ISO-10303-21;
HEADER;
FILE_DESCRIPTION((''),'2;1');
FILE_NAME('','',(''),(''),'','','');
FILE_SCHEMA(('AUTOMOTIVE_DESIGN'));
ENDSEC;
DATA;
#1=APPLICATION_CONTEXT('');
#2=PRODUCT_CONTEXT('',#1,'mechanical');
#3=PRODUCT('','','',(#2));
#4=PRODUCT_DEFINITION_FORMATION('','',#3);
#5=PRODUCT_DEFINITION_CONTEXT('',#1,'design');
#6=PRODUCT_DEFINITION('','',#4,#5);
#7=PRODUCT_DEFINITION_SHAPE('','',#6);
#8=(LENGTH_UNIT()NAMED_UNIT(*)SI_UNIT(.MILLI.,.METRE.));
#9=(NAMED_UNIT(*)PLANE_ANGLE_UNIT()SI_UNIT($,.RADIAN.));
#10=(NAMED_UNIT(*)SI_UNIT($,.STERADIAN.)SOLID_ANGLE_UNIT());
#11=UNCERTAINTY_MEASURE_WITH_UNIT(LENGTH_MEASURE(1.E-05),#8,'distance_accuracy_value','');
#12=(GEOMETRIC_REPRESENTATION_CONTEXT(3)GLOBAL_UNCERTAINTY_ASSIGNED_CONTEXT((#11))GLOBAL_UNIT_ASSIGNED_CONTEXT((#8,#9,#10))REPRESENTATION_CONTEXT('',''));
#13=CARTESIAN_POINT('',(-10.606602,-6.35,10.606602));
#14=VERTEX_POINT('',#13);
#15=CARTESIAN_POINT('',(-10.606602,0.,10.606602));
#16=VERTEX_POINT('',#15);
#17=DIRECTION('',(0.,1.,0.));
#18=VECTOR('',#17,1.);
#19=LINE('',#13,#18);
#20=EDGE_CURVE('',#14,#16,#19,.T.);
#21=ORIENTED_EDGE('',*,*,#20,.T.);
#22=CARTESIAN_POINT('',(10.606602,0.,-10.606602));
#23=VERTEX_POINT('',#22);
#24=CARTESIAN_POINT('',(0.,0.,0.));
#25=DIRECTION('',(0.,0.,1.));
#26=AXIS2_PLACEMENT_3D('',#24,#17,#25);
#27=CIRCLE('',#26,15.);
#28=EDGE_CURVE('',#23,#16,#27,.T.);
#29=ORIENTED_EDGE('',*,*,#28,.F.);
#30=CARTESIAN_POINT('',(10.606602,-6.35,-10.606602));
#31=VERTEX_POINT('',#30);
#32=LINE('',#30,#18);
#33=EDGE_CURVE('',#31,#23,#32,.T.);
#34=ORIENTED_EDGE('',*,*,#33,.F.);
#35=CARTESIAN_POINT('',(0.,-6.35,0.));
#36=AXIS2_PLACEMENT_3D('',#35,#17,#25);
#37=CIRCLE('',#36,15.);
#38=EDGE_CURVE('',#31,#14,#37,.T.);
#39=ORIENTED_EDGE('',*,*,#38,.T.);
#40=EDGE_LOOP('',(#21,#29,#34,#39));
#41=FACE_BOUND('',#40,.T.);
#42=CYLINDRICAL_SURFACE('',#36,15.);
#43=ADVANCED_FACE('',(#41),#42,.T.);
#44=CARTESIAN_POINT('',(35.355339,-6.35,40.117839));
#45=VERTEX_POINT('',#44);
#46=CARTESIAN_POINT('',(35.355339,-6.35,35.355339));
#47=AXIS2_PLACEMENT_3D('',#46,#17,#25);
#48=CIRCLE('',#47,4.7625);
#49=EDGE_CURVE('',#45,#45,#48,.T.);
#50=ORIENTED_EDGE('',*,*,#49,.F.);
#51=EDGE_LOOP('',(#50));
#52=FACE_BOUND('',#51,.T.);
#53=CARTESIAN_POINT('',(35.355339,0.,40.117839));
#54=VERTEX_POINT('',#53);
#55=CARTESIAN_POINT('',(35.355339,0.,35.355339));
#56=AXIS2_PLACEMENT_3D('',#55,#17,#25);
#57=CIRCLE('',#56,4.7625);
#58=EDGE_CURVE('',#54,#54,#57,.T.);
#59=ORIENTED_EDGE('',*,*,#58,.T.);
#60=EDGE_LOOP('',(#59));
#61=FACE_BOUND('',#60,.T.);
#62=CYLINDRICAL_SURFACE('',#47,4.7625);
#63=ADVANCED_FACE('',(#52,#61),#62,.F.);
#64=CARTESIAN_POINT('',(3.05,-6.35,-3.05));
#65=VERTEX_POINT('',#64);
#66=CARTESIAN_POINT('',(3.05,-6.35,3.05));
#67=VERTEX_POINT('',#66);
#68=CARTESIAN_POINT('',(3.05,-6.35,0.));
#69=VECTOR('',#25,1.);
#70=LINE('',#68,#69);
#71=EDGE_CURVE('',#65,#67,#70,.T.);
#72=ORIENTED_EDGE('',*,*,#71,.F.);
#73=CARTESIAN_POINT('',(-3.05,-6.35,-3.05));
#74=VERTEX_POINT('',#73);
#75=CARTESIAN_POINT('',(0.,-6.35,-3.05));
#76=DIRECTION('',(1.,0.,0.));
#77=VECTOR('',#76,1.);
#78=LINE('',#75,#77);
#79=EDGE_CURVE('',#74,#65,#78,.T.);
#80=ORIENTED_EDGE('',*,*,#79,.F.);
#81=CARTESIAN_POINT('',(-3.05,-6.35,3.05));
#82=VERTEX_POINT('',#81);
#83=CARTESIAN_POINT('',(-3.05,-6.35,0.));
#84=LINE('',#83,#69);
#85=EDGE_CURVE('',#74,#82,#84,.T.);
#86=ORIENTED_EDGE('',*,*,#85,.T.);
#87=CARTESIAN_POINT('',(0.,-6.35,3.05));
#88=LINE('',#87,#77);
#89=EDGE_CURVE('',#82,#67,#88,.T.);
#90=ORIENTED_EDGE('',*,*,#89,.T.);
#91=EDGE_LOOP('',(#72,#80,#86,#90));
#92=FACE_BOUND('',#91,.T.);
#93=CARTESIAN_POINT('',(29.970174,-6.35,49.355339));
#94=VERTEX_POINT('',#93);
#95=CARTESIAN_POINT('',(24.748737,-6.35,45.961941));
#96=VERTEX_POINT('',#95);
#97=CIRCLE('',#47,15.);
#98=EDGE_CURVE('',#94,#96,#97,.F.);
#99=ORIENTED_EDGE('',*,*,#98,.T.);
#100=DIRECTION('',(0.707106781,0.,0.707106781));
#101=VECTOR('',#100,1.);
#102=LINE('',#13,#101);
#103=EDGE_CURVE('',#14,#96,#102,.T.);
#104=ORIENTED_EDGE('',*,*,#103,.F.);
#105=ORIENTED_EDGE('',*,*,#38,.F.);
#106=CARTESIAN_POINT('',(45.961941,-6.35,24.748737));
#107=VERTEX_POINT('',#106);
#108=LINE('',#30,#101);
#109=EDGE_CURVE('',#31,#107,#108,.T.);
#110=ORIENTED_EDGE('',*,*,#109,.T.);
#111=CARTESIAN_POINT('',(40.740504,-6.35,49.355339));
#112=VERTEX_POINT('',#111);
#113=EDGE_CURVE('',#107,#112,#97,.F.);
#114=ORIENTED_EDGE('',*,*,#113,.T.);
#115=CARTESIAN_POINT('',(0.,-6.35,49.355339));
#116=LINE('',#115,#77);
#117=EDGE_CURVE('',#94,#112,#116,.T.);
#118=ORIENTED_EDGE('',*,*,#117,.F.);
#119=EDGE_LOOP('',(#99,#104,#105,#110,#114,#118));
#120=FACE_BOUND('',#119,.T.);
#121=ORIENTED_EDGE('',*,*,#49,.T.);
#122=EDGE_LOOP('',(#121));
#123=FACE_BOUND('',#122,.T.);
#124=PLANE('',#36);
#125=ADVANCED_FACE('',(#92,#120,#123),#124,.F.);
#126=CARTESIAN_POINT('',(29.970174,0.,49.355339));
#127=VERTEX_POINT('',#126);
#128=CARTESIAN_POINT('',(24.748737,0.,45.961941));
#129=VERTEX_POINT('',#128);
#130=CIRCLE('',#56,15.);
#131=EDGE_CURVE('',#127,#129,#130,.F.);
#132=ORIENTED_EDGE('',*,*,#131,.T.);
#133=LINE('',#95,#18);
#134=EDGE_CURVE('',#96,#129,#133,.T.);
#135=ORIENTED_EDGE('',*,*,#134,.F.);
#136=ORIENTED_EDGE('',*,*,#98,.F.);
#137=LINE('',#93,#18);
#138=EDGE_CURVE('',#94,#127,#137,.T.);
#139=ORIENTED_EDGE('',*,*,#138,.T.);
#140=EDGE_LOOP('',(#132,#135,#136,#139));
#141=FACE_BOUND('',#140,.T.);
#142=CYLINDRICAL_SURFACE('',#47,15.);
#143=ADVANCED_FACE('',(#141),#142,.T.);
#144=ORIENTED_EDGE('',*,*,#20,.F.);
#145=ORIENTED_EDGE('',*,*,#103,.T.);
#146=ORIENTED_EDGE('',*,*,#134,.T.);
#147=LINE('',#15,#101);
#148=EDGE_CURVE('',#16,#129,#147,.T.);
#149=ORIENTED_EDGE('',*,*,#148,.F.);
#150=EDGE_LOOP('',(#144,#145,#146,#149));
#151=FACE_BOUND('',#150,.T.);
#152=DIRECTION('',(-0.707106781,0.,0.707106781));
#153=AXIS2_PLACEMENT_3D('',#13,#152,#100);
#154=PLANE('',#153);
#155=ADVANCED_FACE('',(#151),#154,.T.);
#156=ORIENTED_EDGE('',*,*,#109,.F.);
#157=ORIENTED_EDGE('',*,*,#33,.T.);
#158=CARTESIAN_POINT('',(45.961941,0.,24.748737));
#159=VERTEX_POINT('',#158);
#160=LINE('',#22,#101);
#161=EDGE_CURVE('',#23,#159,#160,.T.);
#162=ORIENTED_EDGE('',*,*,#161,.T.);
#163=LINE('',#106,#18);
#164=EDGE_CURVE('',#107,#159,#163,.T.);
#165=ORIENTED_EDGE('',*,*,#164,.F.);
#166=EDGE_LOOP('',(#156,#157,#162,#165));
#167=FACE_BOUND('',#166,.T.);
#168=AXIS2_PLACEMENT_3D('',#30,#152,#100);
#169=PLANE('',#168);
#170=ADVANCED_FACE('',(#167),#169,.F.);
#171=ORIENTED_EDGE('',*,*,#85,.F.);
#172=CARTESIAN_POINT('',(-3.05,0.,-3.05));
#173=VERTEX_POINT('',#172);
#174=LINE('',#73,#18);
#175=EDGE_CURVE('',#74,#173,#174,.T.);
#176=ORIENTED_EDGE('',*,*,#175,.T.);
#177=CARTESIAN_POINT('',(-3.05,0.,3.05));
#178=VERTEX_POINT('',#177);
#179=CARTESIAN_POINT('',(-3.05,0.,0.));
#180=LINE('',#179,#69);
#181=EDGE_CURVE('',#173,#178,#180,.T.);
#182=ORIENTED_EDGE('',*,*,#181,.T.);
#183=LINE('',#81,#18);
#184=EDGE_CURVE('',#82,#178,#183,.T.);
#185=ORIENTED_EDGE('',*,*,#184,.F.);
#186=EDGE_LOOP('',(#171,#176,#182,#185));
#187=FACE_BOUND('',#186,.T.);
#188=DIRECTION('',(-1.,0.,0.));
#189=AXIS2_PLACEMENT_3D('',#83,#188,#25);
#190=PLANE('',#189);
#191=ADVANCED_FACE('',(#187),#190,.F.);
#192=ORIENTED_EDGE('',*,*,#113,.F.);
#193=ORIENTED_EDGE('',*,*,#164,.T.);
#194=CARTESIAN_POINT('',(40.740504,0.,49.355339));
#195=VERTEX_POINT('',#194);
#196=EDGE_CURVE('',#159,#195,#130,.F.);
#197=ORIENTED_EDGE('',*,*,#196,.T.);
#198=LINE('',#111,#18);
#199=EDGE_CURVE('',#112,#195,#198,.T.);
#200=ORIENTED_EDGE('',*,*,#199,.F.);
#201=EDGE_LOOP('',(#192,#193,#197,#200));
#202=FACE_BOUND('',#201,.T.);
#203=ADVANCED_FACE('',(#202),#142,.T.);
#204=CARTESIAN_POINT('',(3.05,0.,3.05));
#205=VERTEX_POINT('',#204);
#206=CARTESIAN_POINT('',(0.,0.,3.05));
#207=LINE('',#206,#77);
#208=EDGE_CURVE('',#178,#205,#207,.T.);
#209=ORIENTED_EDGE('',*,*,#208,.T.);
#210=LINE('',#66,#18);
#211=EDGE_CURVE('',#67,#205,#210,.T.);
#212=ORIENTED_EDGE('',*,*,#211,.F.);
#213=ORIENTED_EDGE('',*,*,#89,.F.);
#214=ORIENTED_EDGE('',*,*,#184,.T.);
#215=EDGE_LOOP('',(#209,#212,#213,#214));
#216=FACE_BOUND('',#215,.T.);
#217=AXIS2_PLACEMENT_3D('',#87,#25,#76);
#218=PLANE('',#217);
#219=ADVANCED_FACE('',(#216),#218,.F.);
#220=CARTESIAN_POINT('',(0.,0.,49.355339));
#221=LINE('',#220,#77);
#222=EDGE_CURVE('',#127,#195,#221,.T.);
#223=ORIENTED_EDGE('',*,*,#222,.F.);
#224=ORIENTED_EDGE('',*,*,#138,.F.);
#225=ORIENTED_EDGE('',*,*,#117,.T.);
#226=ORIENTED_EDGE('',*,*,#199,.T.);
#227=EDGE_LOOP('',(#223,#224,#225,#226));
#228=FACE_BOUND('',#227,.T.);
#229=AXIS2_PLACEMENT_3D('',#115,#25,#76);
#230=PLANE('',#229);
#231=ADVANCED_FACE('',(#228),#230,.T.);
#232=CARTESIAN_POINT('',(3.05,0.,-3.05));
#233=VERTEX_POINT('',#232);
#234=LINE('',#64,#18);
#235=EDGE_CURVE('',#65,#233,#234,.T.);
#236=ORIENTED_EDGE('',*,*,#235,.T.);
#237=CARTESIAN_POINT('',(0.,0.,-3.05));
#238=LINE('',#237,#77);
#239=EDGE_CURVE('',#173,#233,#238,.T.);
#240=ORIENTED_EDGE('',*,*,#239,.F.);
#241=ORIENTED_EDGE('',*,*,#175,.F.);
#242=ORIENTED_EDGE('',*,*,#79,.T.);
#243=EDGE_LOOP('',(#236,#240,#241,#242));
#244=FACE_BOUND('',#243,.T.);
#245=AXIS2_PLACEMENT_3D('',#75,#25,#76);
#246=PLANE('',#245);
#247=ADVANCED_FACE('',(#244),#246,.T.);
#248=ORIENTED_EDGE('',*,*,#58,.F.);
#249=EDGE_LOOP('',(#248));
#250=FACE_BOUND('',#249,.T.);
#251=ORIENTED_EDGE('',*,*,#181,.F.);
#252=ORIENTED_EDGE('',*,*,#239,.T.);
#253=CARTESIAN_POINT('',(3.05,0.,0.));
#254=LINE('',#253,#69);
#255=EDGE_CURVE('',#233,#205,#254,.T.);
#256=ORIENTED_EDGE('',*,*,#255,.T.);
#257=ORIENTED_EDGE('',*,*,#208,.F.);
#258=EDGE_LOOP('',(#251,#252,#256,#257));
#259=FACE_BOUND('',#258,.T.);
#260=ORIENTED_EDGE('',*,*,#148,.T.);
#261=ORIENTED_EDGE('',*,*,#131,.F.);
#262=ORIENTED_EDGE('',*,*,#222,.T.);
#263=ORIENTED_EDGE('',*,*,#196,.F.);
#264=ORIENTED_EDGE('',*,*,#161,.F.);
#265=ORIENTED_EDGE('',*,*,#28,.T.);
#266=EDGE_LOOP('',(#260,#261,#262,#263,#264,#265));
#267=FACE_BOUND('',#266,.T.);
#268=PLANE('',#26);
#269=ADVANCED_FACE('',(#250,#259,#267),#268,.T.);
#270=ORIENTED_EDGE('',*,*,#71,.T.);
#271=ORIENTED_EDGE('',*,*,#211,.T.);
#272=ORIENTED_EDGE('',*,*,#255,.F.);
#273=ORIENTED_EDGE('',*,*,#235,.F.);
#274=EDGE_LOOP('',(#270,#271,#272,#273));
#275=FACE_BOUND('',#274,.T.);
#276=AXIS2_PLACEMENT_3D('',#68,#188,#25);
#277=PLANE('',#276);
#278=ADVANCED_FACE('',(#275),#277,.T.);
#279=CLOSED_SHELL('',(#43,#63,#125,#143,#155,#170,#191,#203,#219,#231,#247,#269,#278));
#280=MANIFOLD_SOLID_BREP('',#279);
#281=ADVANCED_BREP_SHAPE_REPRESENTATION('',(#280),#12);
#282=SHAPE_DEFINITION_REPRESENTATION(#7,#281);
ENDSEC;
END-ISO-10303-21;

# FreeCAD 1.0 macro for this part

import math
import FreeCAD as App
import Part
import Sketcher

V = App.Vector
Q = App.Units.Quantity

doc = App.newDocument("Part")
body = doc.addObject("PartDesign::Body", "Body")

# Sketch on XZ plane
sketch1 = body.newObject("Sketcher::SketchObject", "Sketch")
sketch1.AttachmentSupport = (doc.getObject("XZ_Plane"), [""])
sketch1.MapMode = "FlatFace"
sketch1.addGeometry([
    Part.LineSegment(V(46, 24.7, 0), V(10.6, -10.6, 0)),  # 0
    Part.ArcOfCircle(Part.Circle(V(0, 0, 0), V(0, 0, 1), 15), math.radians(135), math.radians(315)),  # 1
    Part.LineSegment(V(-10.6, 10.6, 0), V(24.7, 46, 0)),  # 2
    Part.ArcOfCircle(Part.Circle(V(35.4, 35.4, 0), V(0, 0, 1), 15), math.radians(111), math.radians(135)),  # 3
    Part.LineSegment(V(30, 49.4, 0), V(40.7, 49.4, 0)),  # 4
    Part.ArcOfCircle(Part.Circle(V(35.4, 35.4, 0), V(0, 0, 1), 15), math.radians(-45), math.radians(69)),  # 5
    Part.Circle(V(35.4, 35.4, 0), V(0, 0, 1), 4.8),  # 6
    Part.LineSegment(V(3, 3, 0), V(-3, 3, 0)),  # 7
    Part.LineSegment(V(-3, 3, 0), V(-3, -3, 0)),  # 8
    Part.LineSegment(V(-3, -3, 0), V(3, -3, 0)),  # 9
    Part.LineSegment(V(3, -3, 0), V(3, 3, 0)),  # 10
], False)
sketch1.addConstraint([
    Sketcher.Constraint("Tangent", 0, 2, 1, 2),
    Sketcher.Constraint("Tangent", 1, 1, 2, 1),
    Sketcher.Constraint("Tangent", 2, 2, 3, 2),
    Sketcher.Constraint("Coincident", 3, 1, 4, 1),
    Sketcher.Constraint("Coincident", 4, 2, 5, 2),
    Sketcher.Constraint("Tangent", 5, 1, 0, 1),
    Sketcher.Constraint("Coincident", 7, 2, 8, 1),
    Sketcher.Constraint("Coincident", 8, 2, 9, 1),
    Sketcher.Constraint("Coincident", 9, 2, 10, 1),
    Sketcher.Constraint("Coincident", 10, 2, 7, 1),
    Sketcher.Constraint("Horizontal", 4),
    Sketcher.Constraint("Horizontal", 7),
    Sketcher.Constraint("Vertical", 8),
    Sketcher.Constraint("Horizontal", 9),
    Sketcher.Constraint("Vertical", 10),
    Sketcher.Constraint("Coincident", 1, 3, -1, 1),
    Sketcher.Constraint("Coincident", 5, 3, 3, 3),
    Sketcher.Constraint("Coincident", 6, 3, 3, 3),
    Sketcher.Constraint("Equal", 1, 3),
    Sketcher.Constraint("Equal", 3, 5),
    Sketcher.Constraint("Symmetric", 7, 2, 9, 2, -1, 1),
    Sketcher.Constraint("Equal", 9, 8),
    Sketcher.Constraint("Radius", 1, Q("15 mm")),
    Sketcher.Constraint("Angle", 0, Q("-135 deg")),
    Sketcher.Constraint("Distance", 0, Q("50 mm")),
    Sketcher.Constraint("Diameter", 6, Q("9.525 mm")),
    Sketcher.Constraint("DistanceX", 7, 2, 7, 1, Q("6.1 mm")),
    Sketcher.Constraint("DistanceY", 3, 3, 3, 1, Q("14 mm")),
])
pad1 = body.newObject("PartDesign::Pad", "Pad")
pad1.Profile = sketch1
pad1.Length = 6.35

doc.recompute()
